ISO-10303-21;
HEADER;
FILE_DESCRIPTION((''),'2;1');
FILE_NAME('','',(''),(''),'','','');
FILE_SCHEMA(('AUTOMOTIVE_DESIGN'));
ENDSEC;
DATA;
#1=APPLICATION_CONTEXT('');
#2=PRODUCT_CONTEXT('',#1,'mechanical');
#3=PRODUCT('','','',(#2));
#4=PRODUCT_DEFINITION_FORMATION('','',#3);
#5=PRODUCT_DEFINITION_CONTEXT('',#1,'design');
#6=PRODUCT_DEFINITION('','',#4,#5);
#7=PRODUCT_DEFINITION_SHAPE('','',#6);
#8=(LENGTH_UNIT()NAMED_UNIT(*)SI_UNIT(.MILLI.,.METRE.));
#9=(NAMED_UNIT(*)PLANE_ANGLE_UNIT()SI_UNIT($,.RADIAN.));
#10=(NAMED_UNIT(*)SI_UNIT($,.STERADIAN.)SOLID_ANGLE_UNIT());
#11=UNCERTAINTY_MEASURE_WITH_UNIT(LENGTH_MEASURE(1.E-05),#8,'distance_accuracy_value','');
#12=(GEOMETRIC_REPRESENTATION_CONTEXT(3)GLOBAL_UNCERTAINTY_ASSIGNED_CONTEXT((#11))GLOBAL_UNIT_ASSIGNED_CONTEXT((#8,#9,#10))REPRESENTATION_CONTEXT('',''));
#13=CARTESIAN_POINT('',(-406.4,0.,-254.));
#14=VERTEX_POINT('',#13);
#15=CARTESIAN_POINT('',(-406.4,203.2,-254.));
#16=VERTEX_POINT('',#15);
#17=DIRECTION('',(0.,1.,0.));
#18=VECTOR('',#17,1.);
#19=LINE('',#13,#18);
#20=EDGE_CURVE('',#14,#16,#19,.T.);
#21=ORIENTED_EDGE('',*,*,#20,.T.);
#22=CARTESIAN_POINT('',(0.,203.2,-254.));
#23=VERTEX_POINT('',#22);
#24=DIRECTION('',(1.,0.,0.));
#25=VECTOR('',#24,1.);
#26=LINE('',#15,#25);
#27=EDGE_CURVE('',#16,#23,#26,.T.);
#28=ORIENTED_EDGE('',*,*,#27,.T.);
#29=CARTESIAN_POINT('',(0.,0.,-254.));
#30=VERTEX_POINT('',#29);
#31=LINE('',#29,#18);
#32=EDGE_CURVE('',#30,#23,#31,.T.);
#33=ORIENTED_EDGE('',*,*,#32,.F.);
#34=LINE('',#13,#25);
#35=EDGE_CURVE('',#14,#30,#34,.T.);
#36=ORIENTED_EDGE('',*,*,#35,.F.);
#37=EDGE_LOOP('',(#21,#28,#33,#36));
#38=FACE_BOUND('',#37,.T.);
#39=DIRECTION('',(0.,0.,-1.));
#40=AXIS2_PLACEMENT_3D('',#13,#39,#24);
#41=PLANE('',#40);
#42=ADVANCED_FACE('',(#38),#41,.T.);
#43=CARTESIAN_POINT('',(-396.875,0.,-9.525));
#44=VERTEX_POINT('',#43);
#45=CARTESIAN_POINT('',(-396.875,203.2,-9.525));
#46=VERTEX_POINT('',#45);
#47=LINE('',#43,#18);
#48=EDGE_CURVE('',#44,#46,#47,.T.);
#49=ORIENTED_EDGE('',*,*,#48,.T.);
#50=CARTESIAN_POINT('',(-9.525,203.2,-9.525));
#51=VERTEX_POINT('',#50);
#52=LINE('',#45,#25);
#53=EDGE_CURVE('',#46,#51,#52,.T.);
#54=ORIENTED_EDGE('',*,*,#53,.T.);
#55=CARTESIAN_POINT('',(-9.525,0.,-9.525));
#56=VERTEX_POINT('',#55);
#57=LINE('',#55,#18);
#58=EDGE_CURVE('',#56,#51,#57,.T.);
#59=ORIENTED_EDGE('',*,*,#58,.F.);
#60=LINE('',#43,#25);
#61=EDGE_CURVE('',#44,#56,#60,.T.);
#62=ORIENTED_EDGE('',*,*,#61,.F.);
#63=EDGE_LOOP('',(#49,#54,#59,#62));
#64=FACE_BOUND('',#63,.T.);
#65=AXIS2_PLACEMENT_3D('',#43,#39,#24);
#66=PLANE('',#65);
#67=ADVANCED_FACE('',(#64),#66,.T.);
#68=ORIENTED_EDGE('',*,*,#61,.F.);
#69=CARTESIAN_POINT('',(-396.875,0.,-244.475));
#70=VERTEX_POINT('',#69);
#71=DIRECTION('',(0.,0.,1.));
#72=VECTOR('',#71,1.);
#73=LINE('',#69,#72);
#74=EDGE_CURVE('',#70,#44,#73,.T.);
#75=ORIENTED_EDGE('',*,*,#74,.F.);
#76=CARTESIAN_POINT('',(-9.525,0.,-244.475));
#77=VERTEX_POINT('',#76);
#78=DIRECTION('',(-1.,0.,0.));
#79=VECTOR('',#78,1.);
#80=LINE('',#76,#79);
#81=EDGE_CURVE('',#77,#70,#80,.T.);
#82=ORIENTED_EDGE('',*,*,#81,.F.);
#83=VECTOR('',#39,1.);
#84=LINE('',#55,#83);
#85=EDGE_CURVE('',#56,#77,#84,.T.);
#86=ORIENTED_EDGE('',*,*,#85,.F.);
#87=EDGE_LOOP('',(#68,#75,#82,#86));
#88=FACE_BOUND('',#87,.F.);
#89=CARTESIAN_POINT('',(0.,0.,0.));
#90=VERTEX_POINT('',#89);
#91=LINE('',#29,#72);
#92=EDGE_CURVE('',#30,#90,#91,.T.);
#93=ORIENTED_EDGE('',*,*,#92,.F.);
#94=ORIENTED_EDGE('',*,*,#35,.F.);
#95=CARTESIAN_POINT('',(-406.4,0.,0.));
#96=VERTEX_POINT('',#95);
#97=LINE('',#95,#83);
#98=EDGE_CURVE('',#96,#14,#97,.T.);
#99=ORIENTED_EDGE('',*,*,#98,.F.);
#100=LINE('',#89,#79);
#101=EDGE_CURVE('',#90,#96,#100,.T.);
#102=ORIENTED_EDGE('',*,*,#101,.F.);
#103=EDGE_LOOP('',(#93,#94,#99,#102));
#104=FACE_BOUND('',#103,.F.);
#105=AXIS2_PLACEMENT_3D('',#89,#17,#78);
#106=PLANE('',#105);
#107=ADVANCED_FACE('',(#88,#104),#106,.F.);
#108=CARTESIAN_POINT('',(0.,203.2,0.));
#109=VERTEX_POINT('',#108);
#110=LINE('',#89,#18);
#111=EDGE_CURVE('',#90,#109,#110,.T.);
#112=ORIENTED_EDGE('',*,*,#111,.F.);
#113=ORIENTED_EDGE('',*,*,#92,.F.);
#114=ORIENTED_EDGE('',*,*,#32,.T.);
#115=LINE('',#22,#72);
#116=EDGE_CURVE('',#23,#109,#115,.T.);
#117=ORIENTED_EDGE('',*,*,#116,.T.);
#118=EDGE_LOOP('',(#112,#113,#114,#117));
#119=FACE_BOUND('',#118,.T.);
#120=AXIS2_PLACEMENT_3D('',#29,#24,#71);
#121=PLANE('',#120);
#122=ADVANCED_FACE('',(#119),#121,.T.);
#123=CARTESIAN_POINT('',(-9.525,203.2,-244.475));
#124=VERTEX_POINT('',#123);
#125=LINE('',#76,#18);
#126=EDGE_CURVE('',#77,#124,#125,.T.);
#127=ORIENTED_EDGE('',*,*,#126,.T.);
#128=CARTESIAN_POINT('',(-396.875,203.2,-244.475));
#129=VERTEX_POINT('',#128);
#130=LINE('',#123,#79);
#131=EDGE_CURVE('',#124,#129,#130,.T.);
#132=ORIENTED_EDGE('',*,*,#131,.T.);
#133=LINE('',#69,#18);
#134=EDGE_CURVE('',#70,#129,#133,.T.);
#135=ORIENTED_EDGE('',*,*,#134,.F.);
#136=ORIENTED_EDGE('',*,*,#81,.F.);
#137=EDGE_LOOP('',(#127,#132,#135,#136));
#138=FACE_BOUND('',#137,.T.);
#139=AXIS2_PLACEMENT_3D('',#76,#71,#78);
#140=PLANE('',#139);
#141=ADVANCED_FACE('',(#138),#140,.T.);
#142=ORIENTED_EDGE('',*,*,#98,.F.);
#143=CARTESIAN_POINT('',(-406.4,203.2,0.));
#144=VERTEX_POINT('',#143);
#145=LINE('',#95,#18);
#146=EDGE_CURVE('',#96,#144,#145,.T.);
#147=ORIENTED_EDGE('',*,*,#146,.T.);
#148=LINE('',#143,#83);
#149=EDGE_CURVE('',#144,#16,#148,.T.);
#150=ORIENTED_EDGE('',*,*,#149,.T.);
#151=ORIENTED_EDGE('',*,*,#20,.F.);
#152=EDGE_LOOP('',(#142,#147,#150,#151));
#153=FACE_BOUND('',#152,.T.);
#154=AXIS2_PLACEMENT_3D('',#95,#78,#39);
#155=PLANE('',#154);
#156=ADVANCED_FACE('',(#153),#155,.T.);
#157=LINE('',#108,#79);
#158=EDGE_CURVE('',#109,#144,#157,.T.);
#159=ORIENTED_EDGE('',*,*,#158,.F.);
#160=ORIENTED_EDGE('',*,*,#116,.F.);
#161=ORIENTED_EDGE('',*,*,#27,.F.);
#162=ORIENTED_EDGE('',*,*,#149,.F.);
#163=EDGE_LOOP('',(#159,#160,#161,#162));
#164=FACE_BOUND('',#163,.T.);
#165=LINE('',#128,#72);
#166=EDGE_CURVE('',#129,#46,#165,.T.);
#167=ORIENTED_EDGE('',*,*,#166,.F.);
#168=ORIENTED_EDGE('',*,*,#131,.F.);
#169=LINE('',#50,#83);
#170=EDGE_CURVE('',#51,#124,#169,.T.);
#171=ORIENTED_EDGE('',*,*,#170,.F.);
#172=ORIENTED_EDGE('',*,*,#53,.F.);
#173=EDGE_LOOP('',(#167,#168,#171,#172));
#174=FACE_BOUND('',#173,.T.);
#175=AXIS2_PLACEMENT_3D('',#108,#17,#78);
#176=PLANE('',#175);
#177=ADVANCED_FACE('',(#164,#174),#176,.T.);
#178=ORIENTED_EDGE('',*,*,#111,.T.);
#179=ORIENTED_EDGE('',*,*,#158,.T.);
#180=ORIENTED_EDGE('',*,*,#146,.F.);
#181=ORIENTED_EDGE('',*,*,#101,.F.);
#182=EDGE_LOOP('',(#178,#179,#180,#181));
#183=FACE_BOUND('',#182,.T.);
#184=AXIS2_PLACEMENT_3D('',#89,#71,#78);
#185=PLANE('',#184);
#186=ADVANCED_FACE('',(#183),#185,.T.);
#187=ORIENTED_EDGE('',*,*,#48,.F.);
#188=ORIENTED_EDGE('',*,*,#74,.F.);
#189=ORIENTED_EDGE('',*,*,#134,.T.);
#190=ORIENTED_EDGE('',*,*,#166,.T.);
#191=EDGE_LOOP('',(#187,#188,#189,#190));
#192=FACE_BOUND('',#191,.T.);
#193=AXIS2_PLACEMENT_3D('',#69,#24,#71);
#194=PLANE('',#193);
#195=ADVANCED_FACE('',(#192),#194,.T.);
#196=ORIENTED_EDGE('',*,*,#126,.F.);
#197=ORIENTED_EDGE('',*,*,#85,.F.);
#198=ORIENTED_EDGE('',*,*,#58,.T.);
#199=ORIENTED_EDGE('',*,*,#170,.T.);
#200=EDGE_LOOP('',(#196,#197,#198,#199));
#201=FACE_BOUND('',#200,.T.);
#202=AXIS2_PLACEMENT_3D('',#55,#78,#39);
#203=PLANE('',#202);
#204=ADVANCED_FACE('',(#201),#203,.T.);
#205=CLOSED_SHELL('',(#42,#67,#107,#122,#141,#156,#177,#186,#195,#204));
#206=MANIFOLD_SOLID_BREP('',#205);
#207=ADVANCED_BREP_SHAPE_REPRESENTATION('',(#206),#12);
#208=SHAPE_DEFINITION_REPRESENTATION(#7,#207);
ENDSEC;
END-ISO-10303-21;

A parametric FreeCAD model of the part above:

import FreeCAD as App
import Part
import Sketcher
Q = App.Units.Quantity


def add_polygon(sketch, points):
    """Adds a closed chain of lines whose ends are joined by coincident constraints."""
    first, n = sketch.GeometryCount, len(points)
    for a, b in zip(points, points[1:] + points[:1]):
        sketch.addGeometry(Part.LineSegment(App.Vector(*a, 0), App.Vector(*b, 0)), False)
    for i in range(n):
        sketch.addConstraint(Sketcher.Constraint("Coincident", first + i, 2, first + (i + 1) % n, 1))

doc = App.newDocument("Part")
body = doc.addObject("PartDesign::Body", "Body")

sketch1 = body.newObject("Sketcher::SketchObject", "Sketch")
sketch1.AttachmentSupport = (doc.getObject("XZ_Plane"), [""])
sketch1.MapMode = "FlatFace"
add_polygon(sketch1, [(-406, 0), (0, 0), (0, -254), (-406, -254)])
add_polygon(sketch1, [(-397, -10), (-397, -244), (-10, -244), (-10, -10)])
sketch1.addConstraint(Sketcher.Constraint("Horizontal", 0))
sketch1.addConstraint(Sketcher.Constraint("Vertical", 1))
sketch1.addConstraint(Sketcher.Constraint("Horizontal", 2))
sketch1.addConstraint(Sketcher.Constraint("Vertical", 3))
sketch1.addConstraint(Sketcher.Constraint("Vertical", 4))
sketch1.addConstraint(Sketcher.Constraint("Horizontal", 5))
sketch1.addConstraint(Sketcher.Constraint("Vertical", 6))
sketch1.addConstraint(Sketcher.Constraint("Horizontal", 7))
sketch1.addConstraint(Sketcher.Constraint("Coincident", 0, 2, -1, 1))
sketch1.addConstraint(Sketcher.Constraint("DistanceX", 0, 1, 0, 2, Q("16 in")))
sketch1.addConstraint(Sketcher.Constraint("DistanceY", 1, 2, 1, 1, Q("10 in")))
sketch1.addConstraint(Sketcher.Constraint("DistanceX", 5, 2, -1, 1, Q("0.375 in")))
sketch1.addConstraint(Sketcher.Constraint("DistanceY", 6, 2, -1, 1, Q("0.375 in")))
sketch1.addConstraint(Sketcher.Constraint("DistanceX", 2, 2, 4, 2, Q("0.375 in")))
sketch1.addConstraint(Sketcher.Constraint("DistanceY", 2, 2, 4, 2, Q("0.375 in")))
pad1 = body.newObject("PartDesign::Pad", "Pad")
pad1.Profile = sketch1
pad1.Length = Q("8 in")
pad1.Reversed = True

doc.recompute()
